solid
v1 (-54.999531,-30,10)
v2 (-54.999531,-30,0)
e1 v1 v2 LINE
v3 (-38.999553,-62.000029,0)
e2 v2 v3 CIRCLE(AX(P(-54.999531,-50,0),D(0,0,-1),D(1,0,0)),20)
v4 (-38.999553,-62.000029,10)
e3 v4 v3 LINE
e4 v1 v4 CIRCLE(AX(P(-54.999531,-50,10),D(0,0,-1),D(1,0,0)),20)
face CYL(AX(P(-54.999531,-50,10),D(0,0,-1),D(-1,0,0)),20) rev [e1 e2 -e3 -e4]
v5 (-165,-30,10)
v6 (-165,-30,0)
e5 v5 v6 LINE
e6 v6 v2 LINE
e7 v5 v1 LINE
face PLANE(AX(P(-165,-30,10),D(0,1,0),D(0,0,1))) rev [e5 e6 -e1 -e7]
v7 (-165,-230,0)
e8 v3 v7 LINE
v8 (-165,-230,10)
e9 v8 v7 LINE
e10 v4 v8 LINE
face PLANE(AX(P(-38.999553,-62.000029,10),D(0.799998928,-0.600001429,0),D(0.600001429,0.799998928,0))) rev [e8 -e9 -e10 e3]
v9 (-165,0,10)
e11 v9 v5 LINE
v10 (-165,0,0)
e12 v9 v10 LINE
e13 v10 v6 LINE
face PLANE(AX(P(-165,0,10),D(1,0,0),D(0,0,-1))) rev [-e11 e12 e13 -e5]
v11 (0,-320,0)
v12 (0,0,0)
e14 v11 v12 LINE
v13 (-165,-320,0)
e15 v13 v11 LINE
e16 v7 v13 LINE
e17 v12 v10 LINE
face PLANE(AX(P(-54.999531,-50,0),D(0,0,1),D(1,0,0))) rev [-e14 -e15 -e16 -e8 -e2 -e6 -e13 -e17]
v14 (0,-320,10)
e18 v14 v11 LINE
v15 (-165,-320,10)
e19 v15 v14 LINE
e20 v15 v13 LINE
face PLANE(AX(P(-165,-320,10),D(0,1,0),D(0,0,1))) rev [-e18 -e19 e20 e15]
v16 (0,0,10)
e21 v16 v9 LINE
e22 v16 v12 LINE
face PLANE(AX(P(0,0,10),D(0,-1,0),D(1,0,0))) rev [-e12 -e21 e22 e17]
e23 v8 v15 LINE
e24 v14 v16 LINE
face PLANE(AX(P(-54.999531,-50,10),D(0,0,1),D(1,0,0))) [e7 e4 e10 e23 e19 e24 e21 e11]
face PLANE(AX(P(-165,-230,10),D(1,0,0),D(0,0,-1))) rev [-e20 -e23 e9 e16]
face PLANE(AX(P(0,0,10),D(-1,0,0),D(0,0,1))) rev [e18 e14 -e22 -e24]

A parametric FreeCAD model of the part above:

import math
import FreeCAD as App
import Part
import Sketcher

V = App.Vector
Q = App.Units.Quantity

doc = App.newDocument("Part")
body = doc.addObject("PartDesign::Body", "Body")

# Sketch on XY plane
sketch1 = body.newObject("Sketcher::SketchObject", "Sketch")
sketch1.AttachmentSupport = (doc.getObject("XY_Plane"), [""])
sketch1.MapMode = "FlatFace"
sketch1.addGeometry(Part.LineSegment(V(0, -320, 0), V(0, 0, 0)), False)
sketch1.addGeometry(Part.LineSegment(V(0, 0, 0), V(-165, 0, 0)), False)
sketch1.addGeometry(Part.LineSegment(V(-165, 0, 0), V(-165, -30, 0)), False)
sketch1.addGeometry(Part.LineSegment(V(-165, -30, 0), V(-54.999531, -30, 0)), False)
sketch1.addGeometry(Part.ArcOfCircle(Part.Circle(V(-54.999531, -50, 0), V(0, 0, 1), 20), math.radians(-36.87), math.radians(90)), False)
sketch1.addGeometry(Part.LineSegment(V(-38.999553, -62.000029, 0), V(-165, -230, 0)), False)
sketch1.addGeometry(Part.LineSegment(V(-165, -230, 0), V(-165, -320, 0)), False)
sketch1.addGeometry(Part.LineSegment(V(-165, -320, 0), V(0, -320, 0)), False)
sketch1.addConstraint(Sketcher.Constraint("Coincident", 0, 2, 1, 1))
sketch1.addConstraint(Sketcher.Constraint("Coincident", 1, 2, 2, 1))
sketch1.addConstraint(Sketcher.Constraint("Coincident", 2, 2, 3, 1))
sketch1.addConstraint(Sketcher.Constraint("Tangent", 3, 2, 4, 2))
sketch1.addConstraint(Sketcher.Constraint("Tangent", 4, 1, 5, 1))
sketch1.addConstraint(Sketcher.Constraint("Coincident", 5, 2, 6, 1))
sketch1.addConstraint(Sketcher.Constraint("Coincident", 6, 2, 7, 1))
sketch1.addConstraint(Sketcher.Constraint("Coincident", 7, 2, 0, 1))
sketch1.addConstraint(Sketcher.Constraint("Vertical", 0))
sketch1.addConstraint(Sketcher.Constraint("Horizontal", 1))
sketch1.addConstraint(Sketcher.Constraint("Vertical", 2))
sketch1.addConstraint(Sketcher.Constraint("Horizontal", 3))
sketch1.addConstraint(Sketcher.Constraint("Vertical", 6))
sketch1.addConstraint(Sketcher.Constraint("Horizontal", 7))
sketch1.addConstraint(Sketcher.Constraint("Coincident", 0, 2, -1, 1))
sketch1.addConstraint(Sketcher.Constraint("Vertical", 2, 2, 5, 2))
sketch1.addConstraint(Sketcher.Constraint("Radius", 4, 20.0))
sketch1.addConstraint(Sketcher.Constraint("DistanceX", 1, 2, 1, 1, 165.0))
sketch1.addConstraint(Sketcher.Constraint("DistanceY", 0, 1, 0, 2, 320.0))
sketch1.addConstraint(Sketcher.Constraint("DistanceY", 2, 2, 2, 1, 30.0))
sketch1.addConstraint(Sketcher.Constraint("DistanceY", 6, 2, 6, 1, 90.0))
sketch1.addConstraint(Sketcher.Constraint("Angle", 5, Q("-126.87 deg")))
pad1 = body.newObject("PartDesign::Pad", "Pad")
pad1.Profile = sketch1
pad1.Length = 10

doc.recompute()
